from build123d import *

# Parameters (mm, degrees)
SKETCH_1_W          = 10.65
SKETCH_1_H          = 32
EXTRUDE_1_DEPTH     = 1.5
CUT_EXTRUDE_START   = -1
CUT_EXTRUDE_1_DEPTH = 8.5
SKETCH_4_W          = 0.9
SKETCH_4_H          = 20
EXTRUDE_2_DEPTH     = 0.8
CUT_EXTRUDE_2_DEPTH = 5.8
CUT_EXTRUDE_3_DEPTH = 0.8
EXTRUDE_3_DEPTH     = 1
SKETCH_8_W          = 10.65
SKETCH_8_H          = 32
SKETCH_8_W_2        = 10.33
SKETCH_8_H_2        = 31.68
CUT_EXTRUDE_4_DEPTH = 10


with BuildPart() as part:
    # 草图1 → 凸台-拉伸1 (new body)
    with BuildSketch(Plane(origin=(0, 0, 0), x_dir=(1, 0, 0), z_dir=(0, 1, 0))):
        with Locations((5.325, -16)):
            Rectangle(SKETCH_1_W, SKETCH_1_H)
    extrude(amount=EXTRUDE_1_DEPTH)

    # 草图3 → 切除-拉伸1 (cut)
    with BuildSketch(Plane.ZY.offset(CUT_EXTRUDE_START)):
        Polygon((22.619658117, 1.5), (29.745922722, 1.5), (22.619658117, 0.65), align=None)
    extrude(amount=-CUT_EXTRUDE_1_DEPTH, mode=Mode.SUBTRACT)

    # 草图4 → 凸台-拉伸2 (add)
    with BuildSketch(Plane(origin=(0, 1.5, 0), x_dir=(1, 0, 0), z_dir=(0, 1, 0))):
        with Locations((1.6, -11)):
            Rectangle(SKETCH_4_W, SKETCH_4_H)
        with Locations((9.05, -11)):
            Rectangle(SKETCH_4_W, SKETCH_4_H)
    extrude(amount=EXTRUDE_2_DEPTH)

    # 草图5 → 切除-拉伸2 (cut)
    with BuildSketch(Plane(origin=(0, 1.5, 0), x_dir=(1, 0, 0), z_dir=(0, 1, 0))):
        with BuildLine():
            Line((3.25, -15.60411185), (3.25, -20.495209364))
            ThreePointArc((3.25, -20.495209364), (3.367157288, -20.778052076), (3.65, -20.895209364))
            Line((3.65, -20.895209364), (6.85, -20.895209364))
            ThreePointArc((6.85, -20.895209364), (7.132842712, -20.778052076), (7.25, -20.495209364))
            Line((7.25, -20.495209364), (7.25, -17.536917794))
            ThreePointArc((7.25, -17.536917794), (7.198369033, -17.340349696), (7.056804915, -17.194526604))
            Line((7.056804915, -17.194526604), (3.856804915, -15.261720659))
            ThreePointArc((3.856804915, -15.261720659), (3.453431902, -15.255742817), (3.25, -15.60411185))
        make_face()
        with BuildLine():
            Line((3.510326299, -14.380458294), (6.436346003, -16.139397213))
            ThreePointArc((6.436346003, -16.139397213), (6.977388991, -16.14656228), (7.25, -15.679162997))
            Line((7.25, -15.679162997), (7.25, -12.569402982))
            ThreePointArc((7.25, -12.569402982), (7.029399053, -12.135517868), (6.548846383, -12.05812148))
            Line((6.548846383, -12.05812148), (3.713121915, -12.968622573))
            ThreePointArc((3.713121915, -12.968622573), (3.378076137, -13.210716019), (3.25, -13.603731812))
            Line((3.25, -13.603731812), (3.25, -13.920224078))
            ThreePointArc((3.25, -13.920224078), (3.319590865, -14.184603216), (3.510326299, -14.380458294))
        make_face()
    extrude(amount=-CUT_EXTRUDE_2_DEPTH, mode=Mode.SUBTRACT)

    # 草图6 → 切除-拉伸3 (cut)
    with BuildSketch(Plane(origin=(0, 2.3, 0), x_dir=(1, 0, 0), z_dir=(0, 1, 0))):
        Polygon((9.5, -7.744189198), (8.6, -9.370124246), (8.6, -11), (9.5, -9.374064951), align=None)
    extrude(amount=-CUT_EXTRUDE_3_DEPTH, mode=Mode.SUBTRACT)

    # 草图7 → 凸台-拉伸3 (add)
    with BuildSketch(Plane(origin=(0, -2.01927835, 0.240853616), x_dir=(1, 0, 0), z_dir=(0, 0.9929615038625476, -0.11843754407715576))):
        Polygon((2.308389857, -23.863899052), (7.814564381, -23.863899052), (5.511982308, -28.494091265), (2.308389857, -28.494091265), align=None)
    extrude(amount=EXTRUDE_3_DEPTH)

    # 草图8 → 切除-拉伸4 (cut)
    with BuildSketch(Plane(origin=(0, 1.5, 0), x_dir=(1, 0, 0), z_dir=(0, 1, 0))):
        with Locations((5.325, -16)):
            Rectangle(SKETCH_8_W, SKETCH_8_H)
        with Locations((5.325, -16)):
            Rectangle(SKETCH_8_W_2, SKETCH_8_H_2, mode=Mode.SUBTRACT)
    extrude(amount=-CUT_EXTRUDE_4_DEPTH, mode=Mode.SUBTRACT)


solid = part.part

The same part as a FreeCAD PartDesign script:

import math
import FreeCAD as App
import Part
import Sketcher
from FreeCAD import Vector


def add_polygon(sketch, points):
    """Adds a closed chain of lines whose ends are joined by coincident constraints."""
    first, n = sketch.GeometryCount, len(points)
    for a, b in zip(points, points[1:] + points[:1]):
        sketch.addGeometry(Part.LineSegment(App.Vector(*a, 0), App.Vector(*b, 0)), False)
    for i in range(n):
        sketch.addConstraint(Sketcher.Constraint("Coincident", first + i, 2, first + (i + 1) % n, 1))

doc = App.newDocument("Part")
body = doc.addObject("PartDesign::Body", "Body")

# Sketch on XZ plane
sketch1 = doc.addObject("Sketcher::SketchObject", "Sketch")
body.addObject(sketch1)
sketch1.AttachmentSupport = (doc.XZ_Plane, [""])
sketch1.MapMode = "FlatFace"
add_polygon(sketch1, [(0, 0), (0, 32), (11, 32), (11, 0)])  # lines 0-3
sketch1.addConstraint([
    Sketcher.Constraint("Vertical", 0),
    Sketcher.Constraint("Horizontal", 1),
    Sketcher.Constraint("Vertical", 2),
    Sketcher.Constraint("Horizontal", 3),
    Sketcher.Constraint("Coincident", 3, 2, -1, 1),
    Sketcher.Constraint("DistanceY", 0, 1, 0, 2, 32.0),
    Sketcher.Constraint("DistanceX", 1, 1, 1, 2, 10.65),
])
pad1 = doc.addObject("PartDesign::Pad", "Pad")
body.addObject(pad1)
pad1.Profile = sketch1
pad1.Length = 1.5
pad1.Reversed = True

# Sketch on YZ plane
sketch2 = doc.addObject("Sketcher::SketchObject", "Sketch001")
body.addObject(sketch2)
sketch2.AttachmentSupport = (doc.YZ_Plane, [""])
sketch2.MapMode = "FlatFace"
sketch2.AttachmentOffset = App.Placement(Vector(0, 0, 1), App.Rotation())
add_polygon(sketch2, [(1.5, 29.7), (1.5, 22.6), (0.7, 22.6)])  # lines 0-2
sketch2.addConstraint([
    Sketcher.Constraint("Vertical", 0),
    Sketcher.Constraint("Horizontal", 1),
    Sketcher.Constraint("DistanceX", 1, 2, 1, 1, 0.85),
    Sketcher.Constraint("DistanceX", -1, 1, 0, 2, 1.5),
    Sketcher.Constraint("Distance", 2, 7.176778),
    Sketcher.Constraint("DistanceY", -1, 1, 0, 2, 22.619658),
])
pocket1 = doc.addObject("PartDesign::Pocket", "Pocket")
body.addObject(pocket1)
pocket1.Profile = sketch2
pocket1.Length = 8.5
pocket1.Reversed = True

# Sketch on XZ plane
sketch3 = doc.addObject("Sketcher::SketchObject", "Sketch002")
body.addObject(sketch3)
sketch3.AttachmentSupport = (doc.XZ_Plane, [""])
sketch3.MapMode = "FlatFace"
sketch3.AttachmentOffset = App.Placement(Vector(0, 0, -1.5), App.Rotation())
add_polygon(sketch3, [(1.1, 1), (1.1, 21), (2, 21), (2, 1)])  # lines 0-3
add_polygon(sketch3, [(8.6, 1), (8.6, 21), (9.5, 21), (9.5, 1)])  # lines 4-7
sketch3.addConstraint([
    Sketcher.Constraint("Vertical", 0),
    Sketcher.Constraint("Horizontal", 1),
    Sketcher.Constraint("Vertical", 2),
    Sketcher.Constraint("Horizontal", 3),
    Sketcher.Constraint("Vertical", 4),
    Sketcher.Constraint("Horizontal", 5),
    Sketcher.Constraint("Vertical", 6),
    Sketcher.Constraint("Horizontal", 7),
    Sketcher.Constraint("Horizontal", 1, 2, 4, 2),
    Sketcher.Constraint("Horizontal", 3, 2, 6, 2),
    Sketcher.Constraint("Equal", 3, 5),
    Sketcher.Constraint("DistanceY", 0, 1, 0, 2, 20.0),
    Sketcher.Constraint("DistanceX", 1, 1, 1, 2, 0.9),
    Sketcher.Constraint("DistanceY", -1, 1, 0, 2, 21.0),
    Sketcher.Constraint("DistanceX", -1, 1, 4, 2, 8.6),
    Sketcher.Constraint("DistanceX", -1, 1, 0, 2, 1.15),
])
pad2 = doc.addObject("PartDesign::Pad", "Pad001")
body.addObject(pad2)
pad2.Profile = sketch3
pad2.Length = 0.8
pad2.Reversed = True

# Sketch on XZ plane
sketch4 = doc.addObject("Sketcher::SketchObject", "Sketch003")
body.addObject(sketch4)
sketch4.AttachmentSupport = (doc.XZ_Plane, [""])
sketch4.MapMode = "FlatFace"
sketch4.AttachmentOffset = App.Placement(Vector(0, 0, -1.5), App.Rotation())
sketch4.addGeometry([
    Part.LineSegment(Vector(3.25, 15.6, 0), Vector(3.25, 20.5, 0)),  # 0
    Part.ArcOfCircle(Part.Circle(Vector(3.65, 20.5, 0), Vector(0, 0, 1), 0.4), math.radians(90), math.radians(180)),  # 1
    Part.LineSegment(Vector(3.65, 20.9, 0), Vector(6.85, 20.9, 0)),  # 2
    Part.ArcOfCircle(Part.Circle(Vector(6.85, 20.5, 0), Vector(0, 0, 1), 0.4), math.radians(0), math.radians(90)),  # 3
    Part.LineSegment(Vector(7.25, 20.5, 0), Vector(7.25, 17.54, 0)),  # 4
    Part.ArcOfCircle(Part.Circle(Vector(6.85, 17.54, 0), Vector(0, 0, 1), 0.4), math.radians(-59), math.radians(0)),  # 5
    Part.LineSegment(Vector(7.06, 17.19, 0), Vector(3.86, 15.26, 0)),  # 6
    Part.ArcOfCircle(Part.Circle(Vector(3.65, 15.6, 0), Vector(0, 0, 1), 0.4), math.radians(180), math.radians(301)),  # 7
    Part.LineSegment(Vector(3.51, 14.38, 0), Vector(6.44, 16.14, 0)),  # 8
    Part.ArcOfCircle(Part.Circle(Vector(6.71, 15.68, 0), Vector(0, 0, 1), 0.54), math.radians(0), math.radians(121)),  # 9
    Part.LineSegment(Vector(7.25, 15.68, 0), Vector(7.25, 12.57, 0)),  # 10
    Part.ArcOfCircle(Part.Circle(Vector(6.71, 12.57, 0), Vector(0, 0, 1), 0.54), math.radians(-108), math.radians(0)),  # 11
    Part.LineSegment(Vector(6.55, 12.06, 0), Vector(3.71, 12.97, 0)),  # 12
    Part.ArcOfCircle(Part.Circle(Vector(3.92, 13.6, 0), Vector(0, 0, 1), 0.67), math.radians(180), math.radians(252)),  # 13
    Part.LineSegment(Vector(3.25, 13.6, 0), Vector(3.25, 13.92, 0)),  # 14
    Part.ArcOfCircle(Part.Circle(Vector(3.79, 13.92, 0), Vector(0, 0, 1), 0.54), math.radians(121), math.radians(180)),  # 15
], False)
sketch4.addConstraint([
    Sketcher.Constraint("Tangent", 0, 2, 1, 2),
    Sketcher.Constraint("Tangent", 1, 1, 2, 1),
    Sketcher.Constraint("Tangent", 2, 2, 3, 2),
    Sketcher.Constraint("Tangent", 3, 1, 4, 1),
    Sketcher.Constraint("Tangent", 4, 2, 5, 2),
    Sketcher.Constraint("Tangent", 5, 1, 6, 1),
    Sketcher.Constraint("Tangent", 6, 2, 7, 2),
    Sketcher.Constraint("Tangent", 7, 1, 0, 1),
    Sketcher.Constraint("Tangent", 8, 2, 9, 2),
    Sketcher.Constraint("Tangent", 9, 1, 10, 1),
    Sketcher.Constraint("Tangent", 10, 2, 11, 2),
    Sketcher.Constraint("Tangent", 11, 1, 12, 1),
    Sketcher.Constraint("Tangent", 12, 2, 13, 2),
    Sketcher.Constraint("Tangent", 13, 1, 14, 1),
    Sketcher.Constraint("Tangent", 14, 2, 15, 2),
    Sketcher.Constraint("Tangent", 15, 1, 8, 1),
    Sketcher.Constraint("Vertical", 0),
    Sketcher.Constraint("Horizontal", 2),
    Sketcher.Constraint("Vertical", 4),
    Sketcher.Constraint("Vertical", 10),
    Sketcher.Constraint("Vertical", 14),
    Sketcher.Constraint("Equal", 1, 3),
    Sketcher.Constraint("Equal", 3, 5),
    Sketcher.Constraint("Equal", 5, 7),
    Sketcher.Constraint("Equal", 9, 11),
    Sketcher.Constraint("Equal", 11, 15),
    Sketcher.Constraint("Vertical", 4, 2, 9, 1),
    Sketcher.Constraint("Vertical", 7, 1, 13, 1),
    Sketcher.Constraint("Radius", 1, 0.4),
    Sketcher.Constraint("DistanceX", 2, 1, 2, 2, 3.2),
    Sketcher.Constraint("DistanceX", -1, 1, 1, 3, 3.65),
    Sketcher.Constraint("Radius", 9, 0.53699),
    Sketcher.Constraint("Radius", 13, 0.667044),
    Sketcher.Constraint("DistanceY", 4, 2, 4, 1, 2.958292),
    Sketcher.Constraint("DistanceY", 10, 2, 10, 1, 3.10976),
    Sketcher.Constraint("DistanceY", 12, 2, 15, 3, 0.951602),
    Sketcher.Constraint("DistanceY", 12, 2, 6, 2, 2.293098),
    Sketcher.Constraint("Distance", 8, 3.414009),
    Sketcher.Constraint("DistanceY", 0, 1, 0, 2, 4.891098),
    Sketcher.Constraint("DistanceY", -1, 1, 1, 3, 20.495209),
])
pocket2 = doc.addObject("PartDesign::Pocket", "Pocket001")
body.addObject(pocket2)
pocket2.Profile = sketch4
pocket2.Length = 5.8
pocket2.Reversed = True

# Sketch on XZ plane
sketch5 = doc.addObject("Sketcher::SketchObject", "Sketch004")
body.addObject(sketch5)
sketch5.AttachmentSupport = (doc.XZ_Plane, [""])
sketch5.MapMode = "FlatFace"
sketch5.AttachmentOffset = App.Placement(Vector(0, 0, -2.3), App.Rotation())
add_polygon(sketch5, [(9.5, 7.7), (8.6, 9.4), (8.6, 11), (9.5, 9.4)])  # lines 0-3
sketch5.addConstraint([
    Sketcher.Constraint("Vertical", 1),
    Sketcher.Constraint("Vertical", 3),
    Sketcher.Constraint("Parallel", 0, 2),
    Sketcher.Constraint("DistanceY", -1, 1, 1, 2, 11.0),
    Sketcher.Constraint("DistanceX", -1, 1, 0, 2, 8.6),
    Sketcher.Constraint("DistanceX", -1, 1, 2, 2, 9.5),
    Sketcher.Constraint("DistanceY", 1, 1, 1, 2, 1.629876),
    Sketcher.Constraint("DistanceY", -1, 1, 3, 2, 7.744189),
])
pocket3 = doc.addObject("PartDesign::Pocket", "Pocket002")
body.addObject(pocket3)
pocket3.Profile = sketch5
pocket3.Length = 0.8
pocket3.Reversed = True

# Sketch on an angled plane
sketch6 = doc.addObject("Sketcher::SketchObject", "Sketch005")
body.addObject(sketch6)
sketch6.Placement = App.Placement(Vector(0, -2.019278, 0.240854), App.Rotation(Vector(1, 0, 0), Vector(0, -0.118437544, -0.992961504), Vector(0, 0.992961504, -0.118437544), "ZXY"))
add_polygon(sketch6, [(7.8, -23.9), (2.3, -23.9), (2.3, -28.5), (5.5, -28.5)])  # lines 0-3
sketch6.addConstraint([
    Sketcher.Constraint("Horizontal", 0),
    Sketcher.Constraint("Vertical", 1),
    Sketcher.Constraint("Horizontal", 2),
    Sketcher.Constraint("DistanceY", 0, 2, -1, 1, 23.863899),
    Sketcher.Constraint("DistanceX", 0, 2, 0, 1, 5.506175),
    Sketcher.Constraint("DistanceX", 2, 1, 2, 2, 3.203592),
    Sketcher.Constraint("DistanceY", 1, 2, 1, 1, 4.630192),
    Sketcher.Constraint("DistanceX", -1, 1, 0, 2, 2.30839),
])
pad3 = doc.addObject("PartDesign::Pad", "Pad002")
body.addObject(pad3)
pad3.Profile = sketch6
pad3.Length = 1

# Sketch on XZ plane
sketch7 = doc.addObject("Sketcher::SketchObject", "Sketch006")
body.addObject(sketch7)
sketch7.AttachmentSupport = (doc.XZ_Plane, [""])
sketch7.MapMode = "FlatFace"
sketch7.AttachmentOffset = App.Placement(Vector(0, 0, -1.5), App.Rotation())
add_polygon(sketch7, [(0, 0), (0, 32), (11, 32), (11, 0)])  # lines 0-3
add_polygon(sketch7, [(10, 32), (0, 32), (0, 0), (10, 0)])  # lines 4-7
sketch7.addConstraint([
    Sketcher.Constraint("Vertical", 0),
    Sketcher.Constraint("Horizontal", 1),
    Sketcher.Constraint("Vertical", 2),
    Sketcher.Constraint("Horizontal", 3),
    Sketcher.Constraint("Horizontal", 4),
    Sketcher.Constraint("Vertical", 5),
    Sketcher.Constraint("Horizontal", 6),
    Sketcher.Constraint("Vertical", 7),
    Sketcher.Constraint("Coincident", 3, 2, -1, 1),
    Sketcher.Constraint("DistanceY", 0, 1, 0, 2, 32.0),
    Sketcher.Constraint("DistanceX", 1, 1, 1, 2, 10.65),
    Sketcher.Constraint("DistanceX", 4, 2, 4, 1, 10.33),
    Sketcher.Constraint("DistanceY", 5, 2, 5, 1, 31.68),
    Sketcher.Constraint("DistanceX", -1, 1, 4, 2, 0.16),
    Sketcher.Constraint("DistanceY", -1, 1, 4, 2, 31.84),
])
pocket4 = doc.addObject("PartDesign::Pocket", "Pocket003")
body.addObject(pocket4)
pocket4.Profile = sketch7
pocket4.Length = 10
pocket4.Reversed = True

doc.recompute()
